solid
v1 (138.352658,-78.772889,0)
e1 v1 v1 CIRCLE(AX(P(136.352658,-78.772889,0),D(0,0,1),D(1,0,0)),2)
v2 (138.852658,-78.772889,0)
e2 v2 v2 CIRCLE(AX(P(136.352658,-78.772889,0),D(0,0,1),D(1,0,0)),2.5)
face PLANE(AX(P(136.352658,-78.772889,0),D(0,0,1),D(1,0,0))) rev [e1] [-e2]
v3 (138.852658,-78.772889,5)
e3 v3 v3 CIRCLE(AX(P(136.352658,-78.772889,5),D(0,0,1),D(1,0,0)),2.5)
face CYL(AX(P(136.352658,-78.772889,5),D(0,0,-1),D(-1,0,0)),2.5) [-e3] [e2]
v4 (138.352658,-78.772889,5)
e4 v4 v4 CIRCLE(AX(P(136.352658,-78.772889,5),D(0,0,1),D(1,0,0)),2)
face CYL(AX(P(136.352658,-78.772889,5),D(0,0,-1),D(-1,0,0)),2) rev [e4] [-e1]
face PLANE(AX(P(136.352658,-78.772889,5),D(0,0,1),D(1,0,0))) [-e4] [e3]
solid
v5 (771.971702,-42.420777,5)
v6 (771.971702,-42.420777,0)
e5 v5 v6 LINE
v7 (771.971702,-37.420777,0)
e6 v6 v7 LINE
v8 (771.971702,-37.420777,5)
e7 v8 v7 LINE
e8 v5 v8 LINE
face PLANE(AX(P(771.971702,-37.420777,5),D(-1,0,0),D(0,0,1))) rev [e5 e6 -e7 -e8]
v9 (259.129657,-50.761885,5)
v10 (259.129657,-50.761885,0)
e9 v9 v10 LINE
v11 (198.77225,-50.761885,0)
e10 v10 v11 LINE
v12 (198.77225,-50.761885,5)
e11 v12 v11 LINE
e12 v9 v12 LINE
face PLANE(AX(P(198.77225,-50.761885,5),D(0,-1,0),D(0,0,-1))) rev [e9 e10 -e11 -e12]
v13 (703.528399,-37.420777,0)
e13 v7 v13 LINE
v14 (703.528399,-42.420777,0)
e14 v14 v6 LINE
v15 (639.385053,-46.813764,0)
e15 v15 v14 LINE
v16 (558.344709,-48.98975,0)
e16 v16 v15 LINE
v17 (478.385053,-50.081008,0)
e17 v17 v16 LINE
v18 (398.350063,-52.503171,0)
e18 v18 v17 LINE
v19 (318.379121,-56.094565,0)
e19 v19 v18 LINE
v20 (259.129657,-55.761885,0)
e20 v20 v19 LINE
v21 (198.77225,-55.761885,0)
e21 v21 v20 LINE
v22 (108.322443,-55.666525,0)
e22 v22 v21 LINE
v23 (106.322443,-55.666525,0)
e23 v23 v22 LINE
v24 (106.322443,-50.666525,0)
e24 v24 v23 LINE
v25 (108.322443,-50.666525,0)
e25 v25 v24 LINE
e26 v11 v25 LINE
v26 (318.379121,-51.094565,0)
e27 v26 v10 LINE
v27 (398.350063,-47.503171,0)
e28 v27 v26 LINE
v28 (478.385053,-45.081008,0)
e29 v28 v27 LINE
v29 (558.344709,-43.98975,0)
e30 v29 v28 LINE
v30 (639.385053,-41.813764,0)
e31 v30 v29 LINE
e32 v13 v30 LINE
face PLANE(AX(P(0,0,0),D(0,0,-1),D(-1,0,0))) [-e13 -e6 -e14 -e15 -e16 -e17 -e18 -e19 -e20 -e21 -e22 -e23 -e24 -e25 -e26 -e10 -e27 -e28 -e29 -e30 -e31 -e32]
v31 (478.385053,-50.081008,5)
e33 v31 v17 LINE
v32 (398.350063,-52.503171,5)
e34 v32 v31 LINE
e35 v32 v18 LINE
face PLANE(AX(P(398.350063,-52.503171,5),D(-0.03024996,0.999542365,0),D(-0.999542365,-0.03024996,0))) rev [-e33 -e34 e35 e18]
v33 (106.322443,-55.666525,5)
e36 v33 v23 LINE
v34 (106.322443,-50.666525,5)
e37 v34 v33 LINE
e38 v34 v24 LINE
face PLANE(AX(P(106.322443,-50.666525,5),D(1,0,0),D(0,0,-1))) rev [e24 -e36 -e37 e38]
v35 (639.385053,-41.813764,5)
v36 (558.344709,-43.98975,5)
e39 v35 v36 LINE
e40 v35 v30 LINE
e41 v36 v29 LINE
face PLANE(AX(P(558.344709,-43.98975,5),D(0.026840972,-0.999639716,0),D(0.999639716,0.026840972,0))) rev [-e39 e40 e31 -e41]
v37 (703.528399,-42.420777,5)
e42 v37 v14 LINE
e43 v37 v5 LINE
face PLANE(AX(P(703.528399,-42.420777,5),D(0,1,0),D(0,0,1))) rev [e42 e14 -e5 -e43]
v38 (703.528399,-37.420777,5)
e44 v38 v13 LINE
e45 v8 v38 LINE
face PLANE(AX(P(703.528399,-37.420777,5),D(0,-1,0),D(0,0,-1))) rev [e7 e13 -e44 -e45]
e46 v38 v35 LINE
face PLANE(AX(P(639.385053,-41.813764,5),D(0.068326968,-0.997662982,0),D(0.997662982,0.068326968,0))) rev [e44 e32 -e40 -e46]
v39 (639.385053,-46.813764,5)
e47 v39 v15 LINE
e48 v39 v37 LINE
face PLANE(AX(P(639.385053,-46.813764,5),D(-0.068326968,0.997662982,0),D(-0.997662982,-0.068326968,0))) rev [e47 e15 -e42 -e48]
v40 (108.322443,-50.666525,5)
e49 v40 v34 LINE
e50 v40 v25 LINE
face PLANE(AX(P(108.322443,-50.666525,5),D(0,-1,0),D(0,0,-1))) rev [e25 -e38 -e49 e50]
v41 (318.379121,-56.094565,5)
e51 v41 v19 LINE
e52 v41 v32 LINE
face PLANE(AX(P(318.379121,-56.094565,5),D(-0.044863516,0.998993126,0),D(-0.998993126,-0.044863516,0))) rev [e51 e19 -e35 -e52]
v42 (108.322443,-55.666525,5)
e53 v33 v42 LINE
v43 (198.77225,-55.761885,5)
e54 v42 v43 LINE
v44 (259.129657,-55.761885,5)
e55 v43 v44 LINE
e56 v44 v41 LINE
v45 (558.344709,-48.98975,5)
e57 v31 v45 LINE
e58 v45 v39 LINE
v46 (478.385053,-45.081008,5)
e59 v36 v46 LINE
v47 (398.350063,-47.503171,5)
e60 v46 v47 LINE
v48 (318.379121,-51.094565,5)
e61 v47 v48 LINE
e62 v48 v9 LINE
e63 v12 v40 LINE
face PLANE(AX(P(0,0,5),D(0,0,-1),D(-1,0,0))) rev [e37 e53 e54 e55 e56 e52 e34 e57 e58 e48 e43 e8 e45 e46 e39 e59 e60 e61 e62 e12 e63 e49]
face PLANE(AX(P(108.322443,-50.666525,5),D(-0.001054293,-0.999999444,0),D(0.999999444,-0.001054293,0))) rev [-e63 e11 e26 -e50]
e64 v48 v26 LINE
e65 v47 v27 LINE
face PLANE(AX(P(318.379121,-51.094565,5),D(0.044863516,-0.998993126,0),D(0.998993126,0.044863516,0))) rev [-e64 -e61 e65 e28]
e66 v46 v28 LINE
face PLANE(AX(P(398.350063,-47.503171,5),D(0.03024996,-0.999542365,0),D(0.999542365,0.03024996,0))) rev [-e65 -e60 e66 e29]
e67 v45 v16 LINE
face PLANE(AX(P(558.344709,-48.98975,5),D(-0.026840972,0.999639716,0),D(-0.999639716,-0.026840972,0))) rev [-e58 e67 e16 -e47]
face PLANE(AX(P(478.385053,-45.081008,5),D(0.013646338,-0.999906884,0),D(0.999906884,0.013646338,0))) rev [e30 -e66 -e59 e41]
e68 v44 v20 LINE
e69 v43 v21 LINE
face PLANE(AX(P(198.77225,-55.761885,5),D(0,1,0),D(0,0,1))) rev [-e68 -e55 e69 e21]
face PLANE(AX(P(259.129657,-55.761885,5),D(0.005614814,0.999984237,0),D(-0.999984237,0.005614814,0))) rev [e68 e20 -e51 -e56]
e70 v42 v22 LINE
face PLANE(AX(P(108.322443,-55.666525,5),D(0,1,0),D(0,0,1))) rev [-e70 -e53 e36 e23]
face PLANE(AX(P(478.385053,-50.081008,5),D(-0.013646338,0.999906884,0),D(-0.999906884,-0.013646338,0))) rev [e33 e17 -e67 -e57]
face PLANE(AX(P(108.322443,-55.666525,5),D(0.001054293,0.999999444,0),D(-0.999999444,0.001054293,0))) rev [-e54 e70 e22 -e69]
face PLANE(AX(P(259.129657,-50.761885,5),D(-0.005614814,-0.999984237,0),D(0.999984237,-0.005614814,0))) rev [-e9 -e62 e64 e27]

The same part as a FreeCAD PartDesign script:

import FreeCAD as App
import Part
import Sketcher

V = App.Vector
Q = App.Units.Quantity


def add_polygon(sketch, points):
    """Adds a closed chain of lines whose ends are joined by coincident constraints."""
    first, n = sketch.GeometryCount, len(points)
    for a, b in zip(points, points[1:] + points[:1]):
        sketch.addGeometry(Part.LineSegment(App.Vector(*a, 0), App.Vector(*b, 0)), False)
    for i in range(n):
        sketch.addConstraint(Sketcher.Constraint("Coincident", first + i, 2, first + (i + 1) % n, 1))

doc = App.newDocument("Part")
params = doc.addObject("Spreadsheet::Sheet", "Params")
for row, (alias, value) in enumerate([
    ("sketch1_diameter", "5 mm"),
    ("sketch1_diameter2", "4 mm"),
    ("pad1_length", "5 mm"),
    ("sketch2_width", "2 mm"),
    ("sketch2_height", "5 mm"),
    ("pad2_length", "5 mm"),
], start=1):
    params.set(f"A{row}", alias)
    params.set(f"B{row}", "=" + value)
    params.setAlias(f"B{row}", alias)

body = doc.addObject("PartDesign::Body", "Body")

sketch1 = body.newObject("Sketcher::SketchObject", "Sketch")
sketch1.AttachmentSupport = (doc.getObject("XY_Plane"), [""])
sketch1.MapMode = "FlatFace"
sketch1.addGeometry([
    Part.Circle(V(136.4, -78.8, 0), V(0, 0, 1), 2.5),
    Part.Circle(V(136.4, -78.8, 0), V(0, 0, 1), 2),
], False)
sketch1.addConstraint([
    Sketcher.Constraint("Coincident", 1, 3, 0, 3),
    Sketcher.Constraint("Diameter", 0, Q("5 mm")),
    Sketcher.Constraint("Diameter", 1, Q("4 mm")),
    Sketcher.Constraint("DistanceY", 0, 3, -1, 1, Q("78.772889 mm")),
    Sketcher.Constraint("DistanceX", -1, 1, 0, 3, Q("136.352658 mm")),
])
sketch1.setExpression("Constraints[1]", "Params.sketch1_diameter")
sketch1.setExpression("Constraints[2]", "Params.sketch1_diameter2")
pad1 = body.newObject("PartDesign::Pad", "Pad")
pad1.Profile = sketch1
pad1.setExpression("Length", "Params.pad1_length")
body2 = doc.addObject("PartDesign::Body", "Body001")

sketch2 = body2.newObject("Sketcher::SketchObject", "Sketch001")
sketch2.AttachmentSupport = (doc.getObject("XY_Plane001"), [""])
sketch2.MapMode = "FlatFace"
add_polygon(sketch2, [(639.4, -46.8), (703.5, -42.4), (772, -42.4), (772, -37.4), (703.5, -37.4), (639.4, -41.8), (558.3, -44), (478.4, -45.1), (398.4, -47.5), (318.4, -51.1), (259.1, -50.8), (198.8, -50.8), (108.3, -50.7), (106.3, -50.7), (106.3, -55.7), (108.3, -55.7), (198.8, -55.8), (259.1, -55.8), (318.4, -56.1), (398.4, -52.5), (478.4, -50.1), (558.3, -49)])
sketch2.addConstraint([
    Sketcher.Constraint("Horizontal", 1),
    Sketcher.Constraint("Vertical", 2),
    Sketcher.Constraint("Horizontal", 3),
    Sketcher.Constraint("Horizontal", 10),
    Sketcher.Constraint("Horizontal", 12),
    Sketcher.Constraint("Vertical", 13),
    Sketcher.Constraint("Horizontal", 14),
    Sketcher.Constraint("Horizontal", 16),
    Sketcher.Constraint("Parallel", 0, 4),
    Sketcher.Constraint("Parallel", 11, 15),
    Sketcher.Constraint("Parallel", 9, 17),
    Sketcher.Constraint("Parallel", 8, 18),
    Sketcher.Constraint("Parallel", 7, 19),
    Sketcher.Constraint("Parallel", 6, 20),
    Sketcher.Constraint("Parallel", 5, 21),
    Sketcher.Constraint("Vertical", 0, 2, 3, 2),
    Sketcher.Constraint("Vertical", 11, 2, 14, 2),
    Sketcher.Constraint("Vertical", 10, 2, 15, 2),
    Sketcher.Constraint("Vertical", 9, 2, 16, 2),
    Sketcher.Constraint("Vertical", 8, 2, 17, 2),
    Sketcher.Constraint("Vertical", 7, 2, 18, 2),
    Sketcher.Constraint("Vertical", 6, 2, 19, 2),
    Sketcher.Constraint("Vertical", 5, 2, 20, 2),
    Sketcher.Constraint("Vertical", 4, 2, 21, 2),
    Sketcher.Constraint("DistanceX", 12, 2, 12, 1, Q("2 mm")),
    Sketcher.Constraint("DistanceY", 2, 1, 2, 2, Q("5 mm")),
    Sketcher.Constraint("DistanceX", 6, 2, 4, 2, Q("161 mm")),
    Sketcher.Constraint("Distance", 0, Q("64.293601 mm")),
    Sketcher.Constraint("DistanceX", -1, 1, 0, 2, Q("703.528399 mm")),
    Sketcher.Constraint("DistanceX", -1, 1, 1, 2, Q("771.971702 mm")),
    Sketcher.Constraint("DistanceY", 8, 2, 4, 2, Q("9.280801 mm")),
    Sketcher.Constraint("Distance", 5, Q("81.069552 mm")),
    Sketcher.Constraint("DistanceX", 10, 2, 10, 1, Q("60.357407 mm")),
    Sketcher.Constraint("DistanceX", -1, 1, 5, 2, Q("558.344709 mm")),
    Sketcher.Constraint("DistanceY", 5, 2, -1, 1, Q("43.98975 mm")),
    Sketcher.Constraint("DistanceY", 7, 2, -1, 1, Q("47.503171 mm")),
    Sketcher.Constraint("DistanceX", -1, 1, 8, 2, Q("318.379121 mm")),
    Sketcher.Constraint("DistanceX", -1, 1, 10, 2, Q("198.77225 mm")),
    Sketcher.Constraint("DistanceX", 4, 2, 1, 2, Q("132.586649 mm")),
    Sketcher.Constraint("DistanceY", 6, 2, 5, 2, Q("1.091258 mm")),
    Sketcher.Constraint("DistanceX", 7, 2, 6, 2, Q("80.03499 mm")),
    Sketcher.Constraint("DistanceY", 8, 2, 9, 2, Q("0.33268 mm")),
    Sketcher.Constraint("DistanceY", 10, 2, 11, 2, Q("0.095361 mm")),
    Sketcher.Constraint("DistanceX", 11, 2, 7, 2, Q("290.02762 mm")),
])
sketch2.setExpression("Constraints[46]", "Params.sketch2_width")
sketch2.setExpression("Constraints[47]", "Params.sketch2_height")
pad2 = body2.newObject("PartDesign::Pad", "Pad001")
pad2.Profile = sketch2
pad2.setExpression("Length", "Params.pad2_length")

doc.recompute()
